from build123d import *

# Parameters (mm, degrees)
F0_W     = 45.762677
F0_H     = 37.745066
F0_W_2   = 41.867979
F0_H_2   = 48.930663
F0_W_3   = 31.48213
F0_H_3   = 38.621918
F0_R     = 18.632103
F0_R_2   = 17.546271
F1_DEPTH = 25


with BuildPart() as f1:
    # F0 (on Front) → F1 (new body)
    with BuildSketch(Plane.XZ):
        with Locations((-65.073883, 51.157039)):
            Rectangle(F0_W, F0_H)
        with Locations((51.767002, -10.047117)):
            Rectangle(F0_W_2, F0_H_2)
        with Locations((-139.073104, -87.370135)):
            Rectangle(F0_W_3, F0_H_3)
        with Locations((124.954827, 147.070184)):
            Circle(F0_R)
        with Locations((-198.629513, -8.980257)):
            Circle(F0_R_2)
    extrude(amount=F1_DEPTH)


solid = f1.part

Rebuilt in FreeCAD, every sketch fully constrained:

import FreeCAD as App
import Part
import Sketcher
Q = App.Units.Quantity

doc = App.newDocument("Part")
body = doc.addObject("PartDesign::Body", "Body")
body.AllowCompound = True

# Sketch on XZ plane
sketch1 = doc.addObject("Sketcher::SketchObject", "Sketch")
body.addObject(sketch1)
sketch1.AttachmentSupport = (doc.XZ_Plane, [""])
sketch1.MapMode = "FlatFace"
sketch1.addGeometry(Part.LineSegment(App.Vector(-88, 70, 0), App.Vector(-88, 32, 0)), False)
sketch1.addGeometry(Part.LineSegment(App.Vector(-88, 32, 0), App.Vector(-42, 32, 0)), False)
sketch1.addGeometry(Part.LineSegment(App.Vector(-42, 32, 0), App.Vector(-42, 70, 0)), False)
sketch1.addGeometry(Part.LineSegment(App.Vector(-42, 70, 0), App.Vector(-88, 70, 0)), False)
sketch1.addGeometry(Part.LineSegment(App.Vector(31, 14, 0), App.Vector(31, -35, 0)), False)
sketch1.addGeometry(Part.LineSegment(App.Vector(31, -35, 0), App.Vector(73, -35, 0)), False)
sketch1.addGeometry(Part.LineSegment(App.Vector(73, -35, 0), App.Vector(73, 14, 0)), False)
sketch1.addGeometry(Part.LineSegment(App.Vector(73, 14, 0), App.Vector(31, 14, 0)), False)
sketch1.addGeometry(Part.LineSegment(App.Vector(-155, -68, 0), App.Vector(-155, -107, 0)), False)
sketch1.addGeometry(Part.LineSegment(App.Vector(-155, -107, 0), App.Vector(-123, -107, 0)), False)
sketch1.addGeometry(Part.LineSegment(App.Vector(-123, -107, 0), App.Vector(-123, -68, 0)), False)
sketch1.addGeometry(Part.LineSegment(App.Vector(-123, -68, 0), App.Vector(-155, -68, 0)), False)
sketch1.addGeometry(Part.Circle(App.Vector(125, 147, 0), App.Vector(0, 0, 1), 19), False)
sketch1.addGeometry(Part.Circle(App.Vector(-199, -9, 0), App.Vector(0, 0, 1), 18), False)
sketch1.addConstraint(Sketcher.Constraint("Coincident", 0, 2, 1, 1))
sketch1.addConstraint(Sketcher.Constraint("Coincident", 1, 2, 2, 1))
sketch1.addConstraint(Sketcher.Constraint("Coincident", 2, 2, 3, 1))
sketch1.addConstraint(Sketcher.Constraint("Coincident", 3, 2, 0, 1))
sketch1.addConstraint(Sketcher.Constraint("Coincident", 4, 2, 5, 1))
sketch1.addConstraint(Sketcher.Constraint("Coincident", 5, 2, 6, 1))
sketch1.addConstraint(Sketcher.Constraint("Coincident", 6, 2, 7, 1))
sketch1.addConstraint(Sketcher.Constraint("Coincident", 7, 2, 4, 1))
sketch1.addConstraint(Sketcher.Constraint("Coincident", 8, 2, 9, 1))
sketch1.addConstraint(Sketcher.Constraint("Coincident", 9, 2, 10, 1))
sketch1.addConstraint(Sketcher.Constraint("Coincident", 10, 2, 11, 1))
sketch1.addConstraint(Sketcher.Constraint("Coincident", 11, 2, 8, 1))
sketch1.addConstraint(Sketcher.Constraint("Vertical", 0))
sketch1.addConstraint(Sketcher.Constraint("Horizontal", 1))
sketch1.addConstraint(Sketcher.Constraint("Vertical", 2))
sketch1.addConstraint(Sketcher.Constraint("Horizontal", 3))
sketch1.addConstraint(Sketcher.Constraint("Vertical", 4))
sketch1.addConstraint(Sketcher.Constraint("Horizontal", 5))
sketch1.addConstraint(Sketcher.Constraint("Vertical", 6))
sketch1.addConstraint(Sketcher.Constraint("Horizontal", 7))
sketch1.addConstraint(Sketcher.Constraint("Vertical", 8))
sketch1.addConstraint(Sketcher.Constraint("Horizontal", 9))
sketch1.addConstraint(Sketcher.Constraint("Vertical", 10))
sketch1.addConstraint(Sketcher.Constraint("Horizontal", 11))
sketch1.addConstraint(Sketcher.Constraint("Diameter", 12, Q("37.264206 mm")))
sketch1.addConstraint(Sketcher.Constraint("Diameter", 13, Q("35.092542 mm")))
sketch1.addConstraint(Sketcher.Constraint("DistanceX", 5, 1, 5, 2, Q("41.867979 mm")))
sketch1.addConstraint(Sketcher.Constraint("DistanceX", 9, 1, 9, 2, Q("31.48213 mm")))
sketch1.addConstraint(Sketcher.Constraint("DistanceY", 8, 2, 8, 1, Q("38.621918 mm")))
sketch1.addConstraint(Sketcher.Constraint("DistanceY", 8, 2, 0, 2, Q("138.9656 mm")))
sketch1.addConstraint(Sketcher.Constraint("DistanceX", 1, 1, 1, 2, Q("45.762677 mm")))
sketch1.addConstraint(Sketcher.Constraint("DistanceY", 0, 2, 0, 1, Q("37.745066 mm")))
sketch1.addConstraint(Sketcher.Constraint("DistanceY", 4, 2, 4, 1, Q("48.930663 mm")))
sketch1.addConstraint(Sketcher.Constraint("DistanceX", 0, 2, -1, 1, Q("87.955221 mm")))
sketch1.addConstraint(Sketcher.Constraint("DistanceY", -1, 1, 2, 2, Q("70.029572 mm")))
sketch1.addConstraint(Sketcher.Constraint("DistanceY", 4, 2, -1, 1, Q("34.512448 mm")))
sketch1.addConstraint(Sketcher.Constraint("DistanceX", -1, 1, 5, 2, Q("72.700992 mm")))
sketch1.addConstraint(Sketcher.Constraint("DistanceX", 8, 2, -1, 1, Q("154.814169 mm")))
sketch1.addConstraint(Sketcher.Constraint("DistanceX", 13, 3, 12, 3, Q("323.58434 mm")))
sketch1.addConstraint(Sketcher.Constraint("DistanceY", 13, 3, 12, 3, Q("156.050441 mm")))
sketch1.addConstraint(Sketcher.Constraint("DistanceX", 13, 3, 0, 2, Q("110.674292 mm")))
sketch1.addConstraint(Sketcher.Constraint("DistanceY", 0, 2, 12, 3, Q("114.785678 mm")))
pad1 = doc.addObject("PartDesign::Pad", "Pad")
body.addObject(pad1)
pad1.Profile = sketch1
pad1.Length = 25

doc.recompute()
